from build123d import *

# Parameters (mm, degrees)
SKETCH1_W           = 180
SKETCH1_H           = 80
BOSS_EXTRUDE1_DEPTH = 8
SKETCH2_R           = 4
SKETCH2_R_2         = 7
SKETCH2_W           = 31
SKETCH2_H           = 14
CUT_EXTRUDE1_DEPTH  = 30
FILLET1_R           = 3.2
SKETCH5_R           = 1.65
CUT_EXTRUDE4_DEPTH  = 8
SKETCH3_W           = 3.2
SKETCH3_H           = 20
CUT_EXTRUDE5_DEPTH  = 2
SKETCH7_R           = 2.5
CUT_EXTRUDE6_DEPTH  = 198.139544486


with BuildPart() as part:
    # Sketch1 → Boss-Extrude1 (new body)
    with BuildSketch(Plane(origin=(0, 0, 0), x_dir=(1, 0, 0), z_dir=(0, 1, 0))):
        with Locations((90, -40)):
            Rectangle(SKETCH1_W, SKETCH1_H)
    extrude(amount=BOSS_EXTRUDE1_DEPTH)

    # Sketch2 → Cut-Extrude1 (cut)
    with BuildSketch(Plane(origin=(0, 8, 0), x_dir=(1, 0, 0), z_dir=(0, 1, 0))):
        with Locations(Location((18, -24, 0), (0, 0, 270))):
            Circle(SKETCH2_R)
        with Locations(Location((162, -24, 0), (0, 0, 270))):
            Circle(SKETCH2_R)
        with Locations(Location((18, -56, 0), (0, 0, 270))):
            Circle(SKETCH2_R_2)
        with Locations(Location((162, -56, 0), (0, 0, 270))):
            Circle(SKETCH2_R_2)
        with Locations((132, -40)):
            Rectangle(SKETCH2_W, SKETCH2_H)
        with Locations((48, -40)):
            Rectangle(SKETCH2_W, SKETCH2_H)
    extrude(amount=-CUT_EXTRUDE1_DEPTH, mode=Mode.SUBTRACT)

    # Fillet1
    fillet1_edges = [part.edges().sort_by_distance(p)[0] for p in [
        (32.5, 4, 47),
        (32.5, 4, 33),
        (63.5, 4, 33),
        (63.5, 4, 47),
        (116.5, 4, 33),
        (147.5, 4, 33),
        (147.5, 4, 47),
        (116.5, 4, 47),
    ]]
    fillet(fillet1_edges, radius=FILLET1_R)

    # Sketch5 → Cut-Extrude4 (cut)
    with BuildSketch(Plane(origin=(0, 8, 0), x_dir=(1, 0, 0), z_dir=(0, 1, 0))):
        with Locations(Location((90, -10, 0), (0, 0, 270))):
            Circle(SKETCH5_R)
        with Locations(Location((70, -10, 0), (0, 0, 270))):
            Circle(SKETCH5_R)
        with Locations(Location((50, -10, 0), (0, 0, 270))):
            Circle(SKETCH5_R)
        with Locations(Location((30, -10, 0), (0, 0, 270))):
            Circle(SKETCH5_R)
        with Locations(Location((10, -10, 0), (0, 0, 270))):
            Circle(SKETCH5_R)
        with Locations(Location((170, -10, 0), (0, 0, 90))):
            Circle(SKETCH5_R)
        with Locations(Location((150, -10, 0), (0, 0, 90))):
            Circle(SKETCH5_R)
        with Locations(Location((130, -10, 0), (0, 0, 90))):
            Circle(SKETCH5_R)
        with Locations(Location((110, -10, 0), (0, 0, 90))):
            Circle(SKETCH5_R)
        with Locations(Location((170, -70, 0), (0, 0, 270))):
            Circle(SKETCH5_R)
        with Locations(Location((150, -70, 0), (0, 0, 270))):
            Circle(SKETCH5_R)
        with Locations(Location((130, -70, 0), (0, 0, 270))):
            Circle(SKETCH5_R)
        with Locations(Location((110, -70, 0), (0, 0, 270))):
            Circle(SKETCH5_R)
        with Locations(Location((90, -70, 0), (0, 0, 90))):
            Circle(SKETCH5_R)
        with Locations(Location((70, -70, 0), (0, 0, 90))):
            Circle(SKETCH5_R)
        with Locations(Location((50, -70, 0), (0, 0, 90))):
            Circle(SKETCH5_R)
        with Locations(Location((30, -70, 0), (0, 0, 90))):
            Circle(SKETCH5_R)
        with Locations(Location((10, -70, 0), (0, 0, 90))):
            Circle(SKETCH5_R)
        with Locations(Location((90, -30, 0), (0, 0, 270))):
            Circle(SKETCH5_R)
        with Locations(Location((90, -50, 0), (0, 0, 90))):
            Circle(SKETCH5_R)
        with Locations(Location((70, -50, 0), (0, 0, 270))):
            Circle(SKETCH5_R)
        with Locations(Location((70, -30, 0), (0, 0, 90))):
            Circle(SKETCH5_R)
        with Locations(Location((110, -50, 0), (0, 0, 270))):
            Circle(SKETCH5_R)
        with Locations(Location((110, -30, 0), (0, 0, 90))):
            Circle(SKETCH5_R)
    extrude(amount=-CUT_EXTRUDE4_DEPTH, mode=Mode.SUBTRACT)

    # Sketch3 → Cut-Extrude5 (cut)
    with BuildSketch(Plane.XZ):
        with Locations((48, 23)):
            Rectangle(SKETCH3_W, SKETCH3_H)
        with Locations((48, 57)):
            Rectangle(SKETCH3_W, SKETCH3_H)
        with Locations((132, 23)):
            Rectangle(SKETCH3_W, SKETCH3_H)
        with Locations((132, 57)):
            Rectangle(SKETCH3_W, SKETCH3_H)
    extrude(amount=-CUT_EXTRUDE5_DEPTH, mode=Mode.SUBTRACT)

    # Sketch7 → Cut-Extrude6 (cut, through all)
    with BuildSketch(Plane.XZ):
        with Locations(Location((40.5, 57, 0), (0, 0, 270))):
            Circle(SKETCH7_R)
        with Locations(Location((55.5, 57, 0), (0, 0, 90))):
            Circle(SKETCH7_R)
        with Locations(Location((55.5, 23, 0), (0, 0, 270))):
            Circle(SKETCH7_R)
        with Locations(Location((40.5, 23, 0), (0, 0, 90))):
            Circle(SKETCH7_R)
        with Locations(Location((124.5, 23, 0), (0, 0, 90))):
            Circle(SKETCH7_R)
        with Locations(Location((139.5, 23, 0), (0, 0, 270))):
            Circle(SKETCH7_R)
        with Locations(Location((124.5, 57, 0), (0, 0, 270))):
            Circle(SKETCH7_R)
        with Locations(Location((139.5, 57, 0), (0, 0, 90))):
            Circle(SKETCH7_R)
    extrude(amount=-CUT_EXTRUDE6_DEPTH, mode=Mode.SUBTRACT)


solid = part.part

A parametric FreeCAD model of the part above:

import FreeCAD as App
import Part
import Sketcher


def edges_at(feature, points):
    """Names of the edges that pass closest to the given points."""
    edges = feature.Shape.Edges
    near = lambda p: min(range(len(edges)), key=lambda i: edges[i].distToShape(Part.Vertex(*p))[0])
    return sorted({f"Edge{near(p) + 1}" for p in points})

doc = App.newDocument("Part")
body = doc.addObject("PartDesign::Body", "Body")

sketch1 = body.newObject("Sketcher::SketchObject", "Sketch")
sketch1.AttachmentSupport = (doc.getObject("XZ_Plane"), [""])
sketch1.MapMode = "FlatFace"
sketch1.addGeometry([
    Part.LineSegment(App.Vector(0, 0, 0), App.Vector(0, 80, 0)),
    Part.LineSegment(App.Vector(0, 80, 0), App.Vector(180, 80, 0)),
    Part.LineSegment(App.Vector(180, 80, 0), App.Vector(180, 0, 0)),
    Part.LineSegment(App.Vector(180, 0, 0), App.Vector(0, 0, 0)),
], False)
sketch1.addConstraint([
    Sketcher.Constraint("Coincident", 0, 2, 1, 1),
    Sketcher.Constraint("Coincident", 1, 2, 2, 1),
    Sketcher.Constraint("Coincident", 2, 2, 3, 1),
    Sketcher.Constraint("Coincident", 3, 2, 0, 1),
    Sketcher.Constraint("Vertical", 0),
    Sketcher.Constraint("Horizontal", 1),
    Sketcher.Constraint("Vertical", 2),
    Sketcher.Constraint("Horizontal", 3),
    Sketcher.Constraint("Coincident", 3, 2, -1, 1),
    Sketcher.Constraint("DistanceX", 1, 1, 1, 2, 180.0),
    Sketcher.Constraint("DistanceY", 0, 1, 0, 2, 80.0),
])
pad1 = body.newObject("PartDesign::Pad", "Pad")
pad1.Profile = sketch1
pad1.Length = 8
pad1.Reversed = True

sketch2 = body.newObject("Sketcher::SketchObject", "Sketch001")
sketch2.AttachmentSupport = (doc.getObject("XZ_Plane"), [""])
sketch2.MapMode = "FlatFace"
sketch2.AttachmentOffset = App.Placement(App.Vector(0, 0, -8), App.Rotation())
sketch2.addGeometry([
    Part.Circle(App.Vector(18, 24, 0), App.Vector(0, 0, 1), 4),
    Part.Circle(App.Vector(162, 24, 0), App.Vector(0, 0, 1), 4),
    Part.Circle(App.Vector(18, 56, 0), App.Vector(0, 0, 1), 7),
    Part.Circle(App.Vector(162, 56, 0), App.Vector(0, 0, 1), 7),
    Part.LineSegment(App.Vector(116.5, 33, 0), App.Vector(116.5, 47, 0)),
    Part.LineSegment(App.Vector(116.5, 47, 0), App.Vector(147.5, 47, 0)),
    Part.LineSegment(App.Vector(147.5, 47, 0), App.Vector(147.5, 33, 0)),
    Part.LineSegment(App.Vector(147.5, 33, 0), App.Vector(116.5, 33, 0)),
    Part.LineSegment(App.Vector(32.5, 33, 0), App.Vector(32.5, 47, 0)),
    Part.LineSegment(App.Vector(32.5, 47, 0), App.Vector(63.5, 47, 0)),
    Part.LineSegment(App.Vector(63.5, 47, 0), App.Vector(63.5, 33, 0)),
    Part.LineSegment(App.Vector(63.5, 33, 0), App.Vector(32.5, 33, 0)),
], False)
sketch2.addConstraint([
    Sketcher.Constraint("Coincident", 4, 2, 5, 1),
    Sketcher.Constraint("Coincident", 5, 2, 6, 1),
    Sketcher.Constraint("Coincident", 6, 2, 7, 1),
    Sketcher.Constraint("Coincident", 7, 2, 4, 1),
    Sketcher.Constraint("Coincident", 8, 2, 9, 1),
    Sketcher.Constraint("Coincident", 9, 2, 10, 1),
    Sketcher.Constraint("Coincident", 10, 2, 11, 1),
    Sketcher.Constraint("Coincident", 11, 2, 8, 1),
    Sketcher.Constraint("Vertical", 4),
    Sketcher.Constraint("Horizontal", 5),
    Sketcher.Constraint("Vertical", 6),
    Sketcher.Constraint("Horizontal", 7),
    Sketcher.Constraint("Vertical", 8),
    Sketcher.Constraint("Horizontal", 9),
    Sketcher.Constraint("Vertical", 10),
    Sketcher.Constraint("Horizontal", 11),
    Sketcher.Constraint("Equal", 0, 1),
    Sketcher.Constraint("Equal", 2, 3),
    Sketcher.Constraint("Horizontal", 0, 3, 1, 3),
    Sketcher.Constraint("Horizontal", 2, 3, 3, 3),
    Sketcher.Constraint("Horizontal", 5, 2, 8, 2),
    Sketcher.Constraint("Horizontal", 7, 2, 10, 2),
    Sketcher.Constraint("Vertical", 0, 3, 2, 3),
    Sketcher.Constraint("Vertical", 1, 3, 3, 3),
    Sketcher.Constraint("Equal", 7, 9),
    Sketcher.Constraint("Diameter", 0, 8.0),
    Sketcher.Constraint("Diameter", 2, 14.0),
    Sketcher.Constraint("DistanceX", 5, 1, 5, 2, 31.0),
    Sketcher.Constraint("DistanceY", 4, 1, 4, 2, 14.0),
    Sketcher.Constraint("DistanceX", -1, 1, 0, 3, 18.0),
    Sketcher.Constraint("DistanceY", -1, 1, 0, 3, 24.0),
    Sketcher.Constraint("DistanceX", -1, 1, 1, 3, 162.0),
    Sketcher.Constraint("DistanceY", -1, 1, 2, 3, 56.0),
    Sketcher.Constraint("DistanceY", -1, 1, 4, 2, 47.0),
    Sketcher.Constraint("DistanceX", 8, 2, 4, 2, 84.0),
    Sketcher.Constraint("DistanceX", -1, 1, 4, 2, 116.5),
])
pocket1 = body.newObject("PartDesign::Pocket", "Pocket")
pocket1.Profile = sketch2
pocket1.Length = 30
pocket1.Reversed = True
doc.recompute()

fillet = body.newObject("PartDesign::Fillet", "Fillet")
fillet.Base = (pocket1, edges_at(pocket1, [
    (32.5, 4, 47),
    (32.5, 4, 33),
    (63.5, 4, 33),
    (63.5, 4, 47),
    (116.5, 4, 33),
    (147.5, 4, 33),
    (147.5, 4, 47),
    (116.5, 4, 47),
]))
fillet.Radius = 3.2

sketch3 = body.newObject("Sketcher::SketchObject", "Sketch002")
sketch3.AttachmentSupport = (doc.getObject("XZ_Plane"), [""])
sketch3.MapMode = "FlatFace"
sketch3.AttachmentOffset = App.Placement(App.Vector(0, 0, -8), App.Rotation())
sketch3.addGeometry([
    Part.Circle(App.Vector(90, 10, 0), App.Vector(0, 0, 1), 1.65),
    Part.Circle(App.Vector(70, 10, 0), App.Vector(0, 0, 1), 1.65),
    Part.Circle(App.Vector(50, 10, 0), App.Vector(0, 0, 1), 1.65),
    Part.Circle(App.Vector(30, 10, 0), App.Vector(0, 0, 1), 1.65),
    Part.Circle(App.Vector(10, 10, 0), App.Vector(0, 0, 1), 1.65),
    Part.Circle(App.Vector(170, 10, 0), App.Vector(0, 0, 1), 1.65),
    Part.Circle(App.Vector(150, 10, 0), App.Vector(0, 0, 1), 1.65),
    Part.Circle(App.Vector(130, 10, 0), App.Vector(0, 0, 1), 1.65),
    Part.Circle(App.Vector(110, 10, 0), App.Vector(0, 0, 1), 1.65),
    Part.Circle(App.Vector(170, 70, 0), App.Vector(0, 0, 1), 1.65),
    Part.Circle(App.Vector(150, 70, 0), App.Vector(0, 0, 1), 1.65),
    Part.Circle(App.Vector(130, 70, 0), App.Vector(0, 0, 1), 1.65),
    Part.Circle(App.Vector(110, 70, 0), App.Vector(0, 0, 1), 1.65),
    Part.Circle(App.Vector(90, 70, 0), App.Vector(0, 0, 1), 1.65),
    Part.Circle(App.Vector(70, 70, 0), App.Vector(0, 0, 1), 1.65),
    Part.Circle(App.Vector(50, 70, 0), App.Vector(0, 0, 1), 1.65),
    Part.Circle(App.Vector(30, 70, 0), App.Vector(0, 0, 1), 1.65),
    Part.Circle(App.Vector(10, 70, 0), App.Vector(0, 0, 1), 1.65),
    Part.Circle(App.Vector(90, 30, 0), App.Vector(0, 0, 1), 1.65),
    Part.Circle(App.Vector(90, 50, 0), App.Vector(0, 0, 1), 1.65),
    Part.Circle(App.Vector(70, 50, 0), App.Vector(0, 0, 1), 1.65),
    Part.Circle(App.Vector(70, 30, 0), App.Vector(0, 0, 1), 1.65),
    Part.Circle(App.Vector(110, 50, 0), App.Vector(0, 0, 1), 1.65),
    Part.Circle(App.Vector(110, 30, 0), App.Vector(0, 0, 1), 1.65),
], False)
sketch3.addConstraint([
    Sketcher.Constraint("Equal", 0, 1),
    Sketcher.Constraint("Equal", 1, 2),
    Sketcher.Constraint("Equal", 2, 3),
    Sketcher.Constraint("Equal", 3, 4),
    Sketcher.Constraint("Equal", 4, 5),
    Sketcher.Constraint("Equal", 5, 6),
    Sketcher.Constraint("Equal", 6, 7),
    Sketcher.Constraint("Equal", 7, 8),
    Sketcher.Constraint("Equal", 8, 9),
    Sketcher.Constraint("Equal", 9, 10),
    Sketcher.Constraint("Equal", 10, 11),
    Sketcher.Constraint("Equal", 11, 12),
    Sketcher.Constraint("Equal", 12, 13),
    Sketcher.Constraint("Equal", 13, 14),
    Sketcher.Constraint("Equal", 14, 15),
    Sketcher.Constraint("Equal", 15, 16),
    Sketcher.Constraint("Equal", 16, 17),
    Sketcher.Constraint("Equal", 17, 18),
    Sketcher.Constraint("Equal", 18, 19),
    Sketcher.Constraint("Equal", 19, 20),
    Sketcher.Constraint("Equal", 20, 21),
    Sketcher.Constraint("Equal", 21, 22),
    Sketcher.Constraint("Equal", 22, 23),
    Sketcher.Constraint("Horizontal", 0, 3, 1, 3),
    Sketcher.Constraint("Horizontal", 1, 3, 2, 3),
    Sketcher.Constraint("Horizontal", 2, 3, 3, 3),
    Sketcher.Constraint("Horizontal", 3, 3, 4, 3),
    Sketcher.Constraint("Horizontal", 4, 3, 5, 3),
    Sketcher.Constraint("Horizontal", 5, 3, 6, 3),
    Sketcher.Constraint("Horizontal", 6, 3, 7, 3),
    Sketcher.Constraint("Horizontal", 7, 3, 8, 3),
    Sketcher.Constraint("Horizontal", 9, 3, 10, 3),
    Sketcher.Constraint("Horizontal", 10, 3, 11, 3),
    Sketcher.Constraint("Horizontal", 11, 3, 12, 3),
    Sketcher.Constraint("Horizontal", 12, 3, 13, 3),
    Sketcher.Constraint("Horizontal", 13, 3, 14, 3),
    Sketcher.Constraint("Horizontal", 14, 3, 15, 3),
    Sketcher.Constraint("Horizontal", 15, 3, 16, 3),
    Sketcher.Constraint("Horizontal", 16, 3, 17, 3),
    Sketcher.Constraint("Horizontal", 19, 3, 20, 3),
    Sketcher.Constraint("Horizontal", 18, 3, 21, 3),
    Sketcher.Constraint("Horizontal", 20, 3, 22, 3),
    Sketcher.Constraint("Horizontal", 21, 3, 23, 3),
    Sketcher.Constraint("Vertical", 5, 3, 9, 3),
    Sketcher.Constraint("Vertical", 6, 3, 10, 3),
    Sketcher.Constraint("Vertical", 7, 3, 11, 3),
    Sketcher.Constraint("Vertical", 8, 3, 12, 3),
    Sketcher.Constraint("Vertical", 0, 3, 13, 3),
    Sketcher.Constraint("Vertical", 1, 3, 14, 3),
    Sketcher.Constraint("Vertical", 2, 3, 15, 3),
    Sketcher.Constraint("Vertical", 3, 3, 16, 3),
    Sketcher.Constraint("Vertical", 4, 3, 17, 3),
    Sketcher.Constraint("Vertical", 13, 3, 18, 3),
    Sketcher.Constraint("Vertical", 18, 3, 19, 3),
    Sketcher.Constraint("Vertical", 14, 3, 20, 3),
    Sketcher.Constraint("Vertical", 20, 3, 21, 3),
    Sketcher.Constraint("Vertical", 12, 3, 22, 3),
    Sketcher.Constraint("Vertical", 22, 3, 23, 3),
    Sketcher.Constraint("Diameter", 0, 3.3),
    Sketcher.Constraint("DistanceX", -1, 1, 0, 3, 90.0),
    Sketcher.Constraint("DistanceY", -1, 1, 0, 3, 10.0),
    Sketcher.Constraint("DistanceX", -1, 1, 1, 3, 70.0),
    Sketcher.Constraint("DistanceX", -1, 1, 2, 3, 50.0),
    Sketcher.Constraint("DistanceX", -1, 1, 3, 3, 30.0),
    Sketcher.Constraint("DistanceX", -1, 1, 4, 3, 10.0),
    Sketcher.Constraint("DistanceX", -1, 1, 5, 3, 170.0),
    Sketcher.Constraint("DistanceX", -1, 1, 6, 3, 150.0),
    Sketcher.Constraint("DistanceX", -1, 1, 7, 3, 130.0),
    Sketcher.Constraint("DistanceX", -1, 1, 8, 3, 110.0),
    Sketcher.Constraint("DistanceY", -1, 1, 9, 3, 70.0),
    Sketcher.Constraint("DistanceY", -1, 1, 18, 3, 30.0),
    Sketcher.Constraint("DistanceY", -1, 1, 19, 3, 50.0),
])
pocket2 = body.newObject("PartDesign::Pocket", "Pocket001")
pocket2.Profile = sketch3
pocket2.Length = 8
pocket2.Reversed = True

sketch4 = body.newObject("Sketcher::SketchObject", "Sketch003")
sketch4.AttachmentSupport = (doc.getObject("XZ_Plane"), [""])
sketch4.MapMode = "FlatFace"
sketch4.addGeometry([
    Part.LineSegment(App.Vector(46.4, 33, 0), App.Vector(46.4, 13, 0)),
    Part.LineSegment(App.Vector(46.4, 13, 0), App.Vector(49.6, 13, 0)),
    Part.LineSegment(App.Vector(49.6, 13, 0), App.Vector(49.6, 33, 0)),
    Part.LineSegment(App.Vector(49.6, 33, 0), App.Vector(46.4, 33, 0)),
    Part.LineSegment(App.Vector(46.4, 67, 0), App.Vector(46.4, 47, 0)),
    Part.LineSegment(App.Vector(46.4, 47, 0), App.Vector(49.6, 47, 0)),
    Part.LineSegment(App.Vector(49.6, 47, 0), App.Vector(49.6, 67, 0)),
    Part.LineSegment(App.Vector(49.6, 67, 0), App.Vector(46.4, 67, 0)),
    Part.LineSegment(App.Vector(130.4, 33, 0), App.Vector(130.4, 13, 0)),
    Part.LineSegment(App.Vector(130.4, 13, 0), App.Vector(133.6, 13, 0)),
    Part.LineSegment(App.Vector(133.6, 13, 0), App.Vector(133.6, 33, 0)),
    Part.LineSegment(App.Vector(133.6, 33, 0), App.Vector(130.4, 33, 0)),
    Part.LineSegment(App.Vector(130.4, 67, 0), App.Vector(130.4, 47, 0)),
    Part.LineSegment(App.Vector(130.4, 47, 0), App.Vector(133.6, 47, 0)),
    Part.LineSegment(App.Vector(133.6, 47, 0), App.Vector(133.6, 67, 0)),
    Part.LineSegment(App.Vector(133.6, 67, 0), App.Vector(130.4, 67, 0)),
], False)
sketch4.addConstraint([
    Sketcher.Constraint("Coincident", 0, 2, 1, 1),
    Sketcher.Constraint("Coincident", 1, 2, 2, 1),
    Sketcher.Constraint("Coincident", 2, 2, 3, 1),
    Sketcher.Constraint("Coincident", 3, 2, 0, 1),
    Sketcher.Constraint("Coincident", 4, 2, 5, 1),
    Sketcher.Constraint("Coincident", 5, 2, 6, 1),
    Sketcher.Constraint("Coincident", 6, 2, 7, 1),
    Sketcher.Constraint("Coincident", 7, 2, 4, 1),
    Sketcher.Constraint("Coincident", 8, 2, 9, 1),
    Sketcher.Constraint("Coincident", 9, 2, 10, 1),
    Sketcher.Constraint("Coincident", 10, 2, 11, 1),
    Sketcher.Constraint("Coincident", 11, 2, 8, 1),
    Sketcher.Constraint("Coincident", 12, 2, 13, 1),
    Sketcher.Constraint("Coincident", 13, 2, 14, 1),
    Sketcher.Constraint("Coincident", 14, 2, 15, 1),
    Sketcher.Constraint("Coincident", 15, 2, 12, 1),
    Sketcher.Constraint("Vertical", 0),
    Sketcher.Constraint("Horizontal", 1),
    Sketcher.Constraint("Vertical", 2),
    Sketcher.Constraint("Horizontal", 3),
    Sketcher.Constraint("Vertical", 4),
    Sketcher.Constraint("Horizontal", 5),
    Sketcher.Constraint("Vertical", 6),
    Sketcher.Constraint("Horizontal", 7),
    Sketcher.Constraint("Vertical", 8),
    Sketcher.Constraint("Horizontal", 9),
    Sketcher.Constraint("Vertical", 10),
    Sketcher.Constraint("Horizontal", 11),
    Sketcher.Constraint("Vertical", 12),
    Sketcher.Constraint("Horizontal", 13),
    Sketcher.Constraint("Vertical", 14),
    Sketcher.Constraint("Horizontal", 15),
    Sketcher.Constraint("Horizontal", 1, 2, 8, 2),
    Sketcher.Constraint("Horizontal", 3, 2, 10, 2),
    Sketcher.Constraint("Horizontal", 5, 2, 12, 2),
    Sketcher.Constraint("Horizontal", 7, 2, 14, 2),
    Sketcher.Constraint("Vertical", 3, 2, 4, 2),
    Sketcher.Constraint("Vertical", 2, 2, 5, 2),
    Sketcher.Constraint("Vertical", 11, 2, 12, 2),
    Sketcher.Constraint("Vertical", 10, 2, 13, 2),
    Sketcher.Constraint("Equal", 7, 9),
    Sketcher.Constraint("Equal", 2, 4),
    Sketcher.Constraint("DistanceY", 0, 2, 0, 1, 20.0),
    Sketcher.Constraint("DistanceX", 1, 1, 1, 2, 3.2),
    Sketcher.Constraint("DistanceY", -1, 1, 0, 2, 13.0),
    Sketcher.Constraint("DistanceY", -1, 1, 4, 2, 47.0),
    Sketcher.Constraint("DistanceX", 0, 2, 8, 2, 84.0),
    Sketcher.Constraint("DistanceX", -1, 1, 0, 2, 46.4),
])
pocket3 = body.newObject("PartDesign::Pocket", "Pocket002")
pocket3.Profile = sketch4
pocket3.Length = 2

sketch5 = body.newObject("Sketcher::SketchObject", "Sketch004")
sketch5.AttachmentSupport = (doc.getObject("XZ_Plane"), [""])
sketch5.MapMode = "FlatFace"
sketch5.addGeometry([
    Part.Circle(App.Vector(40.5, 57, 0), App.Vector(0, 0, 1), 2.5),
    Part.Circle(App.Vector(55.5, 57, 0), App.Vector(0, 0, 1), 2.5),
    Part.Circle(App.Vector(55.5, 23, 0), App.Vector(0, 0, 1), 2.5),
    Part.Circle(App.Vector(40.5, 23, 0), App.Vector(0, 0, 1), 2.5),
    Part.Circle(App.Vector(124.5, 23, 0), App.Vector(0, 0, 1), 2.5),
    Part.Circle(App.Vector(139.5, 23, 0), App.Vector(0, 0, 1), 2.5),
    Part.Circle(App.Vector(124.5, 57, 0), App.Vector(0, 0, 1), 2.5),
    Part.Circle(App.Vector(139.5, 57, 0), App.Vector(0, 0, 1), 2.5),
], False)
sketch5.addConstraint([
    Sketcher.Constraint("Equal", 0, 1),
    Sketcher.Constraint("Equal", 1, 2),
    Sketcher.Constraint("Equal", 2, 3),
    Sketcher.Constraint("Equal", 3, 4),
    Sketcher.Constraint("Equal", 4, 5),
    Sketcher.Constraint("Equal", 5, 6),
    Sketcher.Constraint("Equal", 6, 7),
    Sketcher.Constraint("Horizontal", 0, 3, 1, 3),
    Sketcher.Constraint("Horizontal", 2, 3, 3, 3),
    Sketcher.Constraint("Horizontal", 3, 3, 4, 3),
    Sketcher.Constraint("Horizontal", 4, 3, 5, 3),
    Sketcher.Constraint("Horizontal", 1, 3, 6, 3),
    Sketcher.Constraint("Horizontal", 6, 3, 7, 3),
    Sketcher.Constraint("Vertical", 1, 3, 2, 3),
    Sketcher.Constraint("Vertical", 0, 3, 3, 3),
    Sketcher.Constraint("Vertical", 4, 3, 6, 3),
    Sketcher.Constraint("Vertical", 5, 3, 7, 3),
    Sketcher.Constraint("Diameter", 0, 5.0),
    Sketcher.Constraint("DistanceY", -1, 1, 0, 3, 57.0),
    Sketcher.Constraint("DistanceY", -1, 1, 2, 3, 23.0),
    Sketcher.Constraint("DistanceX", 0, 3, 1, 3, 15.0),
    Sketcher.Constraint("DistanceX", 2, 3, 4, 3, 69.0),
    Sketcher.Constraint("DistanceX", 4, 3, 5, 3, 15.0),
    Sketcher.Constraint("DistanceX", -1, 1, 0, 3, 40.5),
])
pocket4 = body.newObject("PartDesign::Pocket", "Pocket003")
pocket4.Profile = sketch5
pocket4.Type = "ThroughAll"

doc.recompute()
